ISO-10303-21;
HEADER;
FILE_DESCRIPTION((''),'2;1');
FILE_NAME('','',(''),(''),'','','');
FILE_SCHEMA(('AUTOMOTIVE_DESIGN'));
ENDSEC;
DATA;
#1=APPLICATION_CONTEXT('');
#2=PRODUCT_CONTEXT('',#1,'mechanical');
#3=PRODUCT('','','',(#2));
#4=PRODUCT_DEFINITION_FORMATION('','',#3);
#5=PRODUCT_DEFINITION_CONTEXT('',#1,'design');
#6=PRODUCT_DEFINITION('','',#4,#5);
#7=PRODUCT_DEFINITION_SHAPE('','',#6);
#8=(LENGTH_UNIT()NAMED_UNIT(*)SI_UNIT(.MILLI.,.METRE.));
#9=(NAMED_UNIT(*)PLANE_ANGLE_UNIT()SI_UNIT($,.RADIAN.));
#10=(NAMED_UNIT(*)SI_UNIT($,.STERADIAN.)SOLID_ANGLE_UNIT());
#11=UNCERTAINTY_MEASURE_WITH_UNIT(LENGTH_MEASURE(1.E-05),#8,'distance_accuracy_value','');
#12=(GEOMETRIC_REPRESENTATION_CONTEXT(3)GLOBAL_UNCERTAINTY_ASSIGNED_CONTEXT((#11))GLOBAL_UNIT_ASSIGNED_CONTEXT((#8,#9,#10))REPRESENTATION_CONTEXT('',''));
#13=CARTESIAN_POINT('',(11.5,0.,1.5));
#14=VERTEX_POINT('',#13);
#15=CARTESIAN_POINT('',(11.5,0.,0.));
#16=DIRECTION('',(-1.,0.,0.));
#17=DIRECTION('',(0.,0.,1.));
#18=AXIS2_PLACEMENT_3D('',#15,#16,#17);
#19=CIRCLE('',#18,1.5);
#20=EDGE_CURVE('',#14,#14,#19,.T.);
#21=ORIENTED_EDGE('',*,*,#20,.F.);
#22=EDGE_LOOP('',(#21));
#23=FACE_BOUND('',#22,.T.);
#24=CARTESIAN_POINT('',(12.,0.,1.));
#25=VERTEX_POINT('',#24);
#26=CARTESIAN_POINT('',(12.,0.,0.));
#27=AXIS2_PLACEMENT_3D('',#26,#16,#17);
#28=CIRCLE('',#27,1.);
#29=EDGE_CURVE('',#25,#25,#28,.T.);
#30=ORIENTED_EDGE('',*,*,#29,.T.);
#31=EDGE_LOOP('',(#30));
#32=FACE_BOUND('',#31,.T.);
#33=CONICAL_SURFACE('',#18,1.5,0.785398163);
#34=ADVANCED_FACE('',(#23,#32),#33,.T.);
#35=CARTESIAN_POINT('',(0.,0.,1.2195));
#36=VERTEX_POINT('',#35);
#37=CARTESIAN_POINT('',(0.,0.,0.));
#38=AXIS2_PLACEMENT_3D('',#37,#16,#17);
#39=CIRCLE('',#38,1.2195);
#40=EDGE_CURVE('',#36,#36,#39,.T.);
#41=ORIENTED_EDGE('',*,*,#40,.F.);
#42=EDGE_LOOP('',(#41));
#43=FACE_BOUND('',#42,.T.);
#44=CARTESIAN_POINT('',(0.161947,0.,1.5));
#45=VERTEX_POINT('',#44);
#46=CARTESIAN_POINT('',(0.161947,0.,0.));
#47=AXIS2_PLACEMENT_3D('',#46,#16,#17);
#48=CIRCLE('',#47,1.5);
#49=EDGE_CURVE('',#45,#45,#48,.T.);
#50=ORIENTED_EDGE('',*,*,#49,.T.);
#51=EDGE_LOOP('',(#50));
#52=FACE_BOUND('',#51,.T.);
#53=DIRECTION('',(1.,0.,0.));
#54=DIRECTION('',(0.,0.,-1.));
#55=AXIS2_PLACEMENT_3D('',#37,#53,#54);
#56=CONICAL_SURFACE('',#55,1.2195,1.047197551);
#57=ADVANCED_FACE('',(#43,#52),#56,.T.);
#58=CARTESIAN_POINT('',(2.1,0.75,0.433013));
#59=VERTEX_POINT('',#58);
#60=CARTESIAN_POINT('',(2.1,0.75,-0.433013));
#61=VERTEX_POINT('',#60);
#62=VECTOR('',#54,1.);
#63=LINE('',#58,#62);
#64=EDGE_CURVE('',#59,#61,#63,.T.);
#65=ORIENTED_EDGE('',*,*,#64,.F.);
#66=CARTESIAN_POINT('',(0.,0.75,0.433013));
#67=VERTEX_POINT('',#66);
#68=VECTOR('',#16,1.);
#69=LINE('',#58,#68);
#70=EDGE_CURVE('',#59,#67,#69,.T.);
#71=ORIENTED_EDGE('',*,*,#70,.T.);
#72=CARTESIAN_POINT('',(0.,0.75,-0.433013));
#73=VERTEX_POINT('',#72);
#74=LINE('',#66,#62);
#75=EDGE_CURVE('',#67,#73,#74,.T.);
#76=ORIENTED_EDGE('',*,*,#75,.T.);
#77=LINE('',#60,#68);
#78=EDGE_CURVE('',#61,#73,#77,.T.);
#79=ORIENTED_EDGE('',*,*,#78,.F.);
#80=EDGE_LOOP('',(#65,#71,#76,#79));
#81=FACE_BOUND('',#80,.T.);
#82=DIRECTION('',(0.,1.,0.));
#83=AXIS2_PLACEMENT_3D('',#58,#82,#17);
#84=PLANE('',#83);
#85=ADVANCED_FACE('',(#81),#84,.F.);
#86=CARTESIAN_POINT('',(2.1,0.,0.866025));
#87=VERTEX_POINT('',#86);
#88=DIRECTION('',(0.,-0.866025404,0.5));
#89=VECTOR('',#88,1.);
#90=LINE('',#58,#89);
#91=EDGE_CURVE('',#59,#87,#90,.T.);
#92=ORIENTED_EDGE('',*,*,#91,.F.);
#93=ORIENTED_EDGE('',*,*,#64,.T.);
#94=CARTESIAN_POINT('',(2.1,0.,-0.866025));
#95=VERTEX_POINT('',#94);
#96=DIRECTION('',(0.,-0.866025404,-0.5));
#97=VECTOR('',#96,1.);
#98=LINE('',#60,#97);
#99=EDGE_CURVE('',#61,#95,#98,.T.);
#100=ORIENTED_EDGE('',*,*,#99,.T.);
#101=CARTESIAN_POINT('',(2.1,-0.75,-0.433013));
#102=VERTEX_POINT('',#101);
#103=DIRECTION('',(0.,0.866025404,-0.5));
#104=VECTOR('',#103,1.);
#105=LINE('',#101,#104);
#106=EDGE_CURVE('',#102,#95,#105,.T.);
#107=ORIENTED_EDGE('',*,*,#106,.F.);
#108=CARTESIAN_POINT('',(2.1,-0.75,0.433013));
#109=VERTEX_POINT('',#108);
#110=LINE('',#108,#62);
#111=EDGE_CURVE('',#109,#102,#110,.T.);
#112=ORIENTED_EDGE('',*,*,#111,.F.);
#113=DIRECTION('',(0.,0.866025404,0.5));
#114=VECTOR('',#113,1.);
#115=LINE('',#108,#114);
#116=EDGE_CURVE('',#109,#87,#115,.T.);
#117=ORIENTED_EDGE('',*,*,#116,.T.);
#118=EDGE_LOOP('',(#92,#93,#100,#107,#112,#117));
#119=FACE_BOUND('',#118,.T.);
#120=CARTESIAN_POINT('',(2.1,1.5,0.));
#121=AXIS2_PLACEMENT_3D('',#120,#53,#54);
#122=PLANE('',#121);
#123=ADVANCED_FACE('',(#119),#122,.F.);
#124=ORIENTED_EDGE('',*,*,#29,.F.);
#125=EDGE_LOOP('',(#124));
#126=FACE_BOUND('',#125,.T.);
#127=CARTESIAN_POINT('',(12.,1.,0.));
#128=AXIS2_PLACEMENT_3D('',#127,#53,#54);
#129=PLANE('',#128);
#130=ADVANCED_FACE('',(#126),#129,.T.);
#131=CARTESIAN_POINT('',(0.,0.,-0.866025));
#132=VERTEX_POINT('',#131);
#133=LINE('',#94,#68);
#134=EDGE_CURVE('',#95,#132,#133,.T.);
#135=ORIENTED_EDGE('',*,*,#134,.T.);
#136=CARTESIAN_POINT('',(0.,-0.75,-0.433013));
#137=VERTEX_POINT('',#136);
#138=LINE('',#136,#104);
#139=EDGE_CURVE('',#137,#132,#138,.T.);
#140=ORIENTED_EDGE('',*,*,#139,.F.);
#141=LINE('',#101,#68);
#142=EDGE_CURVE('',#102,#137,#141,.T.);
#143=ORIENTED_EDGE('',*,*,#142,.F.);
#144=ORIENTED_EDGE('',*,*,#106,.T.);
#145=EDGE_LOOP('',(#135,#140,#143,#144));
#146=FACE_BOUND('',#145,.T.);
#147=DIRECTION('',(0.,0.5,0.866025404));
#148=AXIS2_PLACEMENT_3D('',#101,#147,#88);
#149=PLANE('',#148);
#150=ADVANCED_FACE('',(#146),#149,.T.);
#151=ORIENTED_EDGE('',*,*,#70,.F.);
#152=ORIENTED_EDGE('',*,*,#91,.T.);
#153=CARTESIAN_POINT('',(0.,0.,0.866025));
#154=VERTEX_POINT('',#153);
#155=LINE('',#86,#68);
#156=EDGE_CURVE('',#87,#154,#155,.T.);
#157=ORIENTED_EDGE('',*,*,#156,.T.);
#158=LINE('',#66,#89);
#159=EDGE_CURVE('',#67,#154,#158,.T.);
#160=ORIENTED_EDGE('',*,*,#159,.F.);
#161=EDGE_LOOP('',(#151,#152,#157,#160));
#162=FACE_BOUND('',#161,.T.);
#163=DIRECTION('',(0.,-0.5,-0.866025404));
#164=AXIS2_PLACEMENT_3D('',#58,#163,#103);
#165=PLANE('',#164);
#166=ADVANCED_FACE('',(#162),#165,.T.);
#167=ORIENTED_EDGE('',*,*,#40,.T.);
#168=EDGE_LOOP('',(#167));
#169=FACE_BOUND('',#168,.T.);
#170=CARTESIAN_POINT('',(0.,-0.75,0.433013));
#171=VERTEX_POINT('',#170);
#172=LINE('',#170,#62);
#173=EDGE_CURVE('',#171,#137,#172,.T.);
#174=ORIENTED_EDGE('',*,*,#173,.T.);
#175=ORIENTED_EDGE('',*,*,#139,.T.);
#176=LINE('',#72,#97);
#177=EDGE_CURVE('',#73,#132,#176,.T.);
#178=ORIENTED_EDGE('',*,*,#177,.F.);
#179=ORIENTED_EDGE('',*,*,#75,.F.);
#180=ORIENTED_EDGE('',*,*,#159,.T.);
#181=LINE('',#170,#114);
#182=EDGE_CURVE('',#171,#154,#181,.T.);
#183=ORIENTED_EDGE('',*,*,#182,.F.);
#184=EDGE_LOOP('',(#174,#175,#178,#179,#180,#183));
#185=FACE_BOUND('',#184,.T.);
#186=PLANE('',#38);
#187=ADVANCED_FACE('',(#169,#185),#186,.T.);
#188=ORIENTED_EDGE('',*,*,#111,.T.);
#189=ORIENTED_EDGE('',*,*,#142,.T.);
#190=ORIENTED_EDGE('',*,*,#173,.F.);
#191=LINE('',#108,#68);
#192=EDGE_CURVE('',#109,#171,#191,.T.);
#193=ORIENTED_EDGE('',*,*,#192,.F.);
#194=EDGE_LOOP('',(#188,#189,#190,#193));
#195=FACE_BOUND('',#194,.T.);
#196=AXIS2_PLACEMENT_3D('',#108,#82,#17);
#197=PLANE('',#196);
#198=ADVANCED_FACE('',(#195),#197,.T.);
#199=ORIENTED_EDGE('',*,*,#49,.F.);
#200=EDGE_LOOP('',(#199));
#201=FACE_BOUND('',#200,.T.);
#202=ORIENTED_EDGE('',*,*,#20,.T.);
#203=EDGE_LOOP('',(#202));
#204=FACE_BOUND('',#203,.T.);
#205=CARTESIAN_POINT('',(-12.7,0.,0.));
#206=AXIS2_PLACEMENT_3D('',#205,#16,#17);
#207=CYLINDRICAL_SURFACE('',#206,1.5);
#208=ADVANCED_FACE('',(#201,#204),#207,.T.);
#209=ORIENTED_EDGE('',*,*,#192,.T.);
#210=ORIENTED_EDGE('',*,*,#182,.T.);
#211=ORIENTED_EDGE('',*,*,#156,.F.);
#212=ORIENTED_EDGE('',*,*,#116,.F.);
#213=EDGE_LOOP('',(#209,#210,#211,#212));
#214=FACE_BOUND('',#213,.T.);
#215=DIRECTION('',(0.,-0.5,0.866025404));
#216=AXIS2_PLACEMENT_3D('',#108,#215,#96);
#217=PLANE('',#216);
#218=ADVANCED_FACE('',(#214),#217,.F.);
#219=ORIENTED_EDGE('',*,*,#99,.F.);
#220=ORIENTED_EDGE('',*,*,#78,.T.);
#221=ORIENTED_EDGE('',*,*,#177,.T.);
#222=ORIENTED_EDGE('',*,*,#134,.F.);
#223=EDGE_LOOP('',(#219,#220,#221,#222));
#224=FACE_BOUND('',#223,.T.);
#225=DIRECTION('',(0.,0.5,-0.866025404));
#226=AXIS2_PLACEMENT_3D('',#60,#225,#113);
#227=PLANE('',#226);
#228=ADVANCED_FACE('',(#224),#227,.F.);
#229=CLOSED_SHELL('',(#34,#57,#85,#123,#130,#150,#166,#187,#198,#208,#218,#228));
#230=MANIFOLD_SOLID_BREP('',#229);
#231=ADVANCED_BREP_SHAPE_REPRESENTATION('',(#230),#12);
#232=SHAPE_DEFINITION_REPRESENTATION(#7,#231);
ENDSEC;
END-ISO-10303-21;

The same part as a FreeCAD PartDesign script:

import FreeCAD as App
import Part
import Sketcher
from FreeCAD import Vector
Q = App.Units.Quantity

doc = App.newDocument("Part")
body = doc.addObject("PartDesign::Body", "Body")

# Sketch on XY plane
sketch1 = body.newObject("Sketcher::SketchObject", "Sketch")
sketch1.AttachmentSupport = (doc.getObject("XY_Plane"), [""])
sketch1.MapMode = "FlatFace"
sketch1.addGeometry(Part.LineSegment(Vector(0, 1.22, 0), Vector(0, 0, 0)), False)
sketch1.addGeometry(Part.LineSegment(Vector(0, 0, 0), Vector(12, 0, 0)), False)
sketch1.addGeometry(Part.LineSegment(Vector(12, 0, 0), Vector(12, 1, 0)), False)
sketch1.addGeometry(Part.LineSegment(Vector(12, 1, 0), Vector(11.5, 1.5, 0)), False)
sketch1.addGeometry(Part.LineSegment(Vector(11.5, 1.5, 0), Vector(0.16, 1.5, 0)), False)
sketch1.addGeometry(Part.LineSegment(Vector(0.16, 1.5, 0), Vector(0, 1.22, 0)), False)
sketch1.addConstraint(Sketcher.Constraint("Coincident", 0, 2, 1, 1))
sketch1.addConstraint(Sketcher.Constraint("Coincident", 1, 2, 2, 1))
sketch1.addConstraint(Sketcher.Constraint("Coincident", 2, 2, 3, 1))
sketch1.addConstraint(Sketcher.Constraint("Coincident", 3, 2, 4, 1))
sketch1.addConstraint(Sketcher.Constraint("Coincident", 4, 2, 5, 1))
sketch1.addConstraint(Sketcher.Constraint("Coincident", 5, 2, 0, 1))
sketch1.addConstraint(Sketcher.Constraint("Vertical", 0))
sketch1.addConstraint(Sketcher.Constraint("Horizontal", 1))
sketch1.addConstraint(Sketcher.Constraint("Vertical", 2))
sketch1.addConstraint(Sketcher.Constraint("Horizontal", 4))
sketch1.addConstraint(Sketcher.Constraint("Coincident", 0, 2, -1, 1))
sketch1.addConstraint(Sketcher.Constraint("DistanceX", 1, 1, 1, 2, Q("12 mm")))
sketch1.addConstraint(Sketcher.Constraint("DistanceY", 2, 1, 2, 2, Q("1 mm")))
sketch1.addConstraint(Sketcher.Constraint("Angle", 3, Q("135 deg")))
sketch1.addConstraint(Sketcher.Constraint("Angle", 5, Q("-120 deg")))
sketch1.addConstraint(Sketcher.Constraint("DistanceX", -1, 1, 3, 2, Q("11.5 mm")))
sketch1.addConstraint(Sketcher.Constraint("DistanceY", 0, 2, 0, 1, Q("1.2195 mm")))
revolution = body.newObject("PartDesign::Revolution", "Revolution")
revolution.Profile = sketch1
revolution.ReferenceAxis = (sketch1, ["H_Axis"])
revolution.Angle = 360

# Sketch on YZ plane
sketch2 = body.newObject("Sketcher::SketchObject", "Sketch001")
sketch2.AttachmentSupport = (doc.getObject("YZ_Plane"), [""])
sketch2.MapMode = "FlatFace"
sketch2.addGeometry(Part.LineSegment(Vector(0.8, 0.4, 0), Vector(0.8, -0.4, 0)), False)
sketch2.addGeometry(Part.LineSegment(Vector(0.8, -0.4, 0), Vector(0, -0.9, 0)), False)
sketch2.addGeometry(Part.LineSegment(Vector(0, -0.9, 0), Vector(-0.8, -0.4, 0)), False)
sketch2.addGeometry(Part.LineSegment(Vector(-0.8, -0.4, 0), Vector(-0.8, 0.4, 0)), False)
sketch2.addGeometry(Part.LineSegment(Vector(-0.8, 0.4, 0), Vector(0, 0.9, 0)), False)
sketch2.addGeometry(Part.LineSegment(Vector(0, 0.9, 0), Vector(0.8, 0.4, 0)), False)
sketch2.addConstraint(Sketcher.Constraint("Coincident", 0, 2, 1, 1))
sketch2.addConstraint(Sketcher.Constraint("Coincident", 1, 2, 2, 1))
sketch2.addConstraint(Sketcher.Constraint("Coincident", 2, 2, 3, 1))
sketch2.addConstraint(Sketcher.Constraint("Coincident", 3, 2, 4, 1))
sketch2.addConstraint(Sketcher.Constraint("Coincident", 4, 2, 5, 1))
sketch2.addConstraint(Sketcher.Constraint("Coincident", 5, 2, 0, 1))
sketch2.addConstraint(Sketcher.Constraint("Vertical", 0))
sketch2.addConstraint(Sketcher.Constraint("Vertical", 3))
sketch2.addConstraint(Sketcher.Constraint("Symmetric", 0, 2, 3, 2, -1, 1))
sketch2.addConstraint(Sketcher.Constraint("Symmetric", 1, 2, 4, 2, -1, 1))
sketch2.addConstraint(Sketcher.Constraint("PointOnObject", 1, 2, -2))
sketch2.addConstraint(Sketcher.Constraint("Parallel", 2, 5))
sketch2.addConstraint(Sketcher.Constraint("Horizontal", 0, 2, 2, 2))
sketch2.addConstraint(Sketcher.Constraint("Angle", 1, Q("-150 deg")))
sketch2.addConstraint(Sketcher.Constraint("DistanceX", 2, 2, 0, 2, Q("1.5 mm")))
sketch2.addConstraint(Sketcher.Constraint("DistanceY", 0, 2, 0, 1, Q("0.866025 mm")))
pocket1 = body.newObject("PartDesign::Pocket", "Pocket")
pocket1.Profile = sketch2
pocket1.Length = 2.1
pocket1.Reversed = True

doc.recompute()
